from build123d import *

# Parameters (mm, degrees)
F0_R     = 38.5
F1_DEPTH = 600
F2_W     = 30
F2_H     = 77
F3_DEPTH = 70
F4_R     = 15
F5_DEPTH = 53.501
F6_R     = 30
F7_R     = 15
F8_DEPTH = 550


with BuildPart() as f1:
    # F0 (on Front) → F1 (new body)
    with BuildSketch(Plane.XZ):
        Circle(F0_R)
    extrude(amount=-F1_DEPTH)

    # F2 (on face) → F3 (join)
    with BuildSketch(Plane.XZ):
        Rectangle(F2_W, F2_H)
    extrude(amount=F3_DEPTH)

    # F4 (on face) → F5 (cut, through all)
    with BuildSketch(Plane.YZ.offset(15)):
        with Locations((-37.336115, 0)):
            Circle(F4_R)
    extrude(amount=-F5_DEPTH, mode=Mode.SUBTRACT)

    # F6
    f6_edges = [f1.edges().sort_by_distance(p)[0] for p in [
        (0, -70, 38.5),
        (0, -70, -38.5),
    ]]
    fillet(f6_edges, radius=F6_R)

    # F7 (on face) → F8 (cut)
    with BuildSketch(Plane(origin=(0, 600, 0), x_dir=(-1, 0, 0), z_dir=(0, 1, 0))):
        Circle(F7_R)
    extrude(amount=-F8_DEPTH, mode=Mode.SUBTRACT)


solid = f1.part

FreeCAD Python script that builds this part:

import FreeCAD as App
import Part
import Sketcher
from FreeCAD import Vector


def edges_at(feature, points):
    """Names of the edges that pass closest to the given points."""
    edges = feature.Shape.Edges
    near = lambda p: min(range(len(edges)), key=lambda i: edges[i].distToShape(Part.Vertex(*p))[0])
    return sorted({f"Edge{near(p) + 1}" for p in points})

doc = App.newDocument("Part")
body = doc.addObject("PartDesign::Body", "Body")

sketch1 = doc.addObject("Sketcher::SketchObject", "Sketch")
body.addObject(sketch1)
sketch1.AttachmentSupport = (doc.XZ_Plane, [""])
sketch1.MapMode = "FlatFace"
sketch1.addGeometry(Part.Circle(Vector(0, 0, 0), Vector(0, 0, 1), 38), False)
sketch1.addConstraint([
    Sketcher.Constraint("Coincident", 0, 3, -1, 1),
    Sketcher.Constraint("Diameter", 0, 77.0),
])
pad1 = doc.addObject("PartDesign::Pad", "Pad")
body.addObject(pad1)
pad1.Profile = sketch1
pad1.Length = 600
pad1.Reversed = True

sketch2 = doc.addObject("Sketcher::SketchObject", "Sketch001")
body.addObject(sketch2)
sketch2.AttachmentSupport = (doc.XZ_Plane, [""])
sketch2.MapMode = "FlatFace"
sketch2.addGeometry([
    Part.LineSegment(Vector(-15, 38, 0), Vector(-15, -38, 0)),
    Part.LineSegment(Vector(-15, -38, 0), Vector(15, -38, 0)),
    Part.LineSegment(Vector(15, -38, 0), Vector(15, 38, 0)),
    Part.LineSegment(Vector(15, 38, 0), Vector(-15, 38, 0)),
], False)
sketch2.addConstraint([
    Sketcher.Constraint("Coincident", 0, 2, 1, 1),
    Sketcher.Constraint("Coincident", 1, 2, 2, 1),
    Sketcher.Constraint("Coincident", 2, 2, 3, 1),
    Sketcher.Constraint("Coincident", 3, 2, 0, 1),
    Sketcher.Constraint("Vertical", 0),
    Sketcher.Constraint("Horizontal", 1),
    Sketcher.Constraint("Vertical", 2),
    Sketcher.Constraint("Horizontal", 3),
    Sketcher.Constraint("Symmetric", 0, 2, 2, 2, -1, 1),
    Sketcher.Constraint("DistanceX", 1, 1, 1, 2, 30.0),
    Sketcher.Constraint("DistanceY", 0, 2, 0, 1, 77.0),
])
pad2 = doc.addObject("PartDesign::Pad", "Pad001")
body.addObject(pad2)
pad2.Profile = sketch2
pad2.Length = 70

sketch3 = doc.addObject("Sketcher::SketchObject", "Sketch002")
body.addObject(sketch3)
sketch3.AttachmentSupport = (doc.YZ_Plane, [""])
sketch3.MapMode = "FlatFace"
sketch3.AttachmentOffset = App.Placement(Vector(0, 0, 15), App.Rotation())
sketch3.addGeometry(Part.Circle(Vector(-37, 0, 0), Vector(0, 0, 1), 15), False)
sketch3.addConstraint([
    Sketcher.Constraint("PointOnObject", 0, 3, -1),
    Sketcher.Constraint("Diameter", 0, 30.0),
    Sketcher.Constraint("DistanceX", 0, 3, -1, 1, 37.336115),
])
pocket1 = doc.addObject("PartDesign::Pocket", "Pocket")
body.addObject(pocket1)
pocket1.Profile = sketch3
pocket1.Type = "ThroughAll"
doc.recompute()

fillet = doc.addObject("PartDesign::Fillet", "Fillet")
body.addObject(fillet)
fillet.Base = (pocket1, edges_at(pocket1, [(0, -70, 38.5), (0, -70, -38.5)]))
fillet.Radius = 30

sketch4 = doc.addObject("Sketcher::SketchObject", "Sketch003")
body.addObject(sketch4)
sketch4.AttachmentSupport = (doc.XZ_Plane, [""])
sketch4.MapMode = "FlatFace"
sketch4.AttachmentOffset = App.Placement(Vector(0, 0, -600), App.Rotation())
sketch4.addGeometry(Part.Circle(Vector(0, 0, 0), Vector(0, 0, 1), 15), False)
sketch4.addConstraint([
    Sketcher.Constraint("Coincident", 0, 3, -1, 1),
    Sketcher.Constraint("Diameter", 0, 30.0),
])
pocket2 = doc.addObject("PartDesign::Pocket", "Pocket001")
body.addObject(pocket2)
pocket2.Profile = sketch4
pocket2.Length = 550
pocket2.Reversed = True

doc.recompute()
